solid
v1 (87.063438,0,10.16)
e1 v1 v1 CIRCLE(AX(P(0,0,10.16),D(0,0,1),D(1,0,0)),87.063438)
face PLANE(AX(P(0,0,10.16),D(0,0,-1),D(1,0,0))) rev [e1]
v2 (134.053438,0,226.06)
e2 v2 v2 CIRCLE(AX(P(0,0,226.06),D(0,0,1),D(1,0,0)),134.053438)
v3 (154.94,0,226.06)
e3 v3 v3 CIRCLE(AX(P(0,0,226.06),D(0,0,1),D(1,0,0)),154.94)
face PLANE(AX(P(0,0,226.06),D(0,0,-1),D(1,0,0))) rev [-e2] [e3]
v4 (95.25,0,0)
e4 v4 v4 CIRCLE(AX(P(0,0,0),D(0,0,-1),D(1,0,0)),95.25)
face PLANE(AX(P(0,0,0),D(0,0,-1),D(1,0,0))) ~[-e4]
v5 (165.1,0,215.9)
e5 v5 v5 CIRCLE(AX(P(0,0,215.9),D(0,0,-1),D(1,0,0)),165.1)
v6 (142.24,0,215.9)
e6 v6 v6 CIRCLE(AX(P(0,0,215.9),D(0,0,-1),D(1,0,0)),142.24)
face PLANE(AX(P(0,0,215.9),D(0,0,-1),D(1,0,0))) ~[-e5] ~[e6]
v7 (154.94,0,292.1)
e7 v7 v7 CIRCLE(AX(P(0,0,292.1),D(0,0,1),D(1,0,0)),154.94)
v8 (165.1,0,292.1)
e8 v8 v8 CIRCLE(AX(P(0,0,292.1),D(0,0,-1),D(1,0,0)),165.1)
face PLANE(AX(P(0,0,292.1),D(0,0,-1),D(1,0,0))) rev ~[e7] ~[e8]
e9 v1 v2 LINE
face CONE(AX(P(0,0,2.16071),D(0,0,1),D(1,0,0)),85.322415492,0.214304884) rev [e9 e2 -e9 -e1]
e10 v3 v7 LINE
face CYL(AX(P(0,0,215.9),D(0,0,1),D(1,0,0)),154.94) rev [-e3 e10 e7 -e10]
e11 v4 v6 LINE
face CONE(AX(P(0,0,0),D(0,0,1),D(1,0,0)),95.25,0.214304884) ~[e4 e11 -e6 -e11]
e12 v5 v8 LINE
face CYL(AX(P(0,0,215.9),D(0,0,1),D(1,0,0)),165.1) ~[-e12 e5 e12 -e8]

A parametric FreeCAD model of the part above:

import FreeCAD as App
import Part
import Sketcher
Q = App.Units.Quantity


def faces_at(feature, points):
    """Names of the faces that lie closest to the given points."""
    faces = feature.Shape.Faces
    near = lambda p: min(range(len(faces)), key=lambda i: faces[i].distToShape(Part.Vertex(*p))[0])
    return sorted({f"Face{near(p) + 1}" for p in points})


def add_polygon(sketch, points):
    """Adds a closed chain of lines whose ends are joined by coincident constraints."""
    first, n = sketch.GeometryCount, len(points)
    for a, b in zip(points, points[1:] + points[:1]):
        sketch.addGeometry(Part.LineSegment(App.Vector(*a, 0), App.Vector(*b, 0)), False)
    for i in range(n):
        sketch.addConstraint(Sketcher.Constraint("Coincident", first + i, 2, first + (i + 1) % n, 1))

doc = App.newDocument("Part")
body = doc.addObject("PartDesign::Body", "Body")

# Sketch on XZ plane
sketch1 = doc.addObject("Sketcher::SketchObject", "Sketch")
body.addObject(sketch1)
sketch1.AttachmentSupport = (doc.XZ_Plane, [""])
sketch1.MapMode = "FlatFace"
add_polygon(sketch1, [(0, 292), (0, 0), (95, 0), (142, 216), (165, 216), (165, 292)])  # lines 0-5
sketch1.addConstraint([
    Sketcher.Constraint("Vertical", 0),
    Sketcher.Constraint("Horizontal", 1),
    Sketcher.Constraint("Horizontal", 3),
    Sketcher.Constraint("Vertical", 4),
    Sketcher.Constraint("Horizontal", 5),
    Sketcher.Constraint("Coincident", 0, 2, -1, 1),
    Sketcher.Constraint("DistanceY", 4, 1, 4, 2, Q("3 in")),
    Sketcher.Constraint("DistanceX", 3, 1, 3, 2, Q("0.9 in")),
    Sketcher.Constraint("DistanceX", 5, 2, 5, 1, Q("6.5 in")),
    Sketcher.Constraint("DistanceY", 0, 2, 0, 1, Q("11.5 in")),
    Sketcher.Constraint("DistanceX", 1, 1, 1, 2, Q("3.75 in")),
])
revolution = doc.addObject("PartDesign::Revolution", "Revolution")
body.addObject(revolution)
revolution.Profile = sketch1
revolution.ReferenceAxis = (sketch1, ["V_Axis"])
revolution.Angle = 360
doc.recompute()

thickness = doc.addObject("PartDesign::Thickness", "Thickness")
body.addObject(thickness)
thickness.Base = (revolution, faces_at(revolution, [(0, 0, 292.1)]))
thickness.Value = Q("0.4 in")
thickness.Reversed = True
thickness.Join = "Intersection"

doc.recompute()
